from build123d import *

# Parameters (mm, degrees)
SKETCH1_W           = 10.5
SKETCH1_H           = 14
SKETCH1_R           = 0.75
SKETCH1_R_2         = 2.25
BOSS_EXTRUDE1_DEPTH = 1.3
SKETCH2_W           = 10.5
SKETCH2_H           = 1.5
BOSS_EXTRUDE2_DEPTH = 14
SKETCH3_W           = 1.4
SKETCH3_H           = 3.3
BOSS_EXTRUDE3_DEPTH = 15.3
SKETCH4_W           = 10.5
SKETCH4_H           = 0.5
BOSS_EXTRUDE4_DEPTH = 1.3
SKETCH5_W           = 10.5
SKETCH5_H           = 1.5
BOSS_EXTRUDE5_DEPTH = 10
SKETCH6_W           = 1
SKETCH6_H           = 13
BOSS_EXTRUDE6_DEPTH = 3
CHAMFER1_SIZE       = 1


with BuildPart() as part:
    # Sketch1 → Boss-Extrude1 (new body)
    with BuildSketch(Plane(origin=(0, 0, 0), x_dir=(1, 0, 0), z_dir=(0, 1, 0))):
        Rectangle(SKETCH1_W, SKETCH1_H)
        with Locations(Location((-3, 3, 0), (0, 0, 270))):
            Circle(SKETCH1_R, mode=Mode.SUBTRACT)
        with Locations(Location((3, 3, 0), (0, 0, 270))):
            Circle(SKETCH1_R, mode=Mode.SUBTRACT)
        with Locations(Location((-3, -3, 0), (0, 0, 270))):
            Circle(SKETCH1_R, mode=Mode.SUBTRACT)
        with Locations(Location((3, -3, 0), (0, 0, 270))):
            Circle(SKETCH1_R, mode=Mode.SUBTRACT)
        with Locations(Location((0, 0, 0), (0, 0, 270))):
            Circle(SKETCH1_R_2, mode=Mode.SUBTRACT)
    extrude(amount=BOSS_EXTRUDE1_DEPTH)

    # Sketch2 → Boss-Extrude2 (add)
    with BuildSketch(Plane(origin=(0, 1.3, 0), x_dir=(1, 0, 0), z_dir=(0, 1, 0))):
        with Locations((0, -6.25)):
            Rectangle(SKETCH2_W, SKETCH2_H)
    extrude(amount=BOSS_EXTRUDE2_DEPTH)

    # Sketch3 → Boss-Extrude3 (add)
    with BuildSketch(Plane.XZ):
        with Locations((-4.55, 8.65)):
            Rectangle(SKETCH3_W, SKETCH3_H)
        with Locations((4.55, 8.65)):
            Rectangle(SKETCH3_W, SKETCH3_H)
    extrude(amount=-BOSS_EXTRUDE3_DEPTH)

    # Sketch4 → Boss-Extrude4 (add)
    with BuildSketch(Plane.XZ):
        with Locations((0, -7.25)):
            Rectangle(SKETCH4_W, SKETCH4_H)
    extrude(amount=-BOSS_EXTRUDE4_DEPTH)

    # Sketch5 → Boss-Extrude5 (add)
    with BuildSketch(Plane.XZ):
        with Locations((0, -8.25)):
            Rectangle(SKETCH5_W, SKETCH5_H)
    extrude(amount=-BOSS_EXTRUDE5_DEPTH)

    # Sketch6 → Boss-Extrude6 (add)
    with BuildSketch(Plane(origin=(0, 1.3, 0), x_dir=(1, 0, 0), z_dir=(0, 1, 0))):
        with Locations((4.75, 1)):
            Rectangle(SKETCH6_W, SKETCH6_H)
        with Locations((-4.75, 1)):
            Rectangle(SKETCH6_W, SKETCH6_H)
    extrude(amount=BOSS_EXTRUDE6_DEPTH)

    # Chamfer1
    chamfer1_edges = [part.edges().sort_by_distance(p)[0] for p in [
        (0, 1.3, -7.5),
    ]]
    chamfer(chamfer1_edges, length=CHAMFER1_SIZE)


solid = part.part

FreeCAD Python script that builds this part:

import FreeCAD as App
import Part
import Sketcher
from FreeCAD import Vector


def edges_at(feature, points):
    """Names of the edges that pass closest to the given points."""
    edges = feature.Shape.Edges
    near = lambda p: min(range(len(edges)), key=lambda i: edges[i].distToShape(Part.Vertex(*p))[0])
    return sorted({f"Edge{near(p) + 1}" for p in points})

doc = App.newDocument("Part")
params = doc.addObject("Spreadsheet::Sheet", "Params")
for row, (alias, value) in enumerate([
    ("sketch1_diameter", "1.5 mm"),
    ("sketch1_diameter2", "4.5 mm"),
    ("sketch1_height", "14 mm"),
    ("sketch1_width", "10.5 mm"),
    ("pad1_length", "1.3 mm"),
    ("sketch2_width", "10.5 mm"),
    ("sketch2_height", "1.5 mm"),
    ("pad2_length", "14 mm"),
    ("sketch3_width", "1.4 mm"),
    ("sketch3_height", "3.3 mm"),
    ("pad3_length", "15.3 mm"),
    ("sketch4_width", "10.5 mm"),
    ("sketch4_height", "0.5 mm"),
    ("pad4_length", "1.3 mm"),
    ("sketch5_width", "10.5 mm"),
    ("sketch5_height", "1.5 mm"),
    ("pad5_length", "10 mm"),
    ("sketch6_width", "1 mm"),
    ("sketch6_height", "13 mm"),
    ("pad6_length", "3 mm"),
    ("chamfer_size", "1 mm"),
], start=1):
    params.set(f"A{row}", alias)
    params.set(f"B{row}", "=" + value)
    params.setAlias(f"B{row}", alias)

body = doc.addObject("PartDesign::Body", "Body")

sketch1 = doc.addObject("Sketcher::SketchObject", "Sketch")
body.addObject(sketch1)
sketch1.AttachmentSupport = (doc.XZ_Plane, [""])
sketch1.MapMode = "FlatFace"
sketch1.addGeometry(Part.LineSegment(Vector(-5.2, -7, 0), Vector(-5.2, 7, 0)), False)
sketch1.addGeometry(Part.LineSegment(Vector(-5.2, 7, 0), Vector(5.2, 7, 0)), False)
sketch1.addGeometry(Part.LineSegment(Vector(5.2, 7, 0), Vector(5.2, -7, 0)), False)
sketch1.addGeometry(Part.LineSegment(Vector(5.2, -7, 0), Vector(-5.2, -7, 0)), False)
sketch1.addGeometry(Part.Circle(Vector(-3, 3, 0), Vector(0, 0, 1), 0.8), False)
sketch1.addGeometry(Part.Circle(Vector(3, 3, 0), Vector(0, 0, 1), 0.8), False)
sketch1.addGeometry(Part.Circle(Vector(-3, -3, 0), Vector(0, 0, 1), 0.8), False)
sketch1.addGeometry(Part.Circle(Vector(0, 0, 0), Vector(0, 0, 1), 2.2), False)
sketch1.addGeometry(Part.Circle(Vector(3, -3, 0), Vector(0, 0, 1), 0.8), False)
sketch1.addConstraint(Sketcher.Constraint("Coincident", 0, 2, 1, 1))
sketch1.addConstraint(Sketcher.Constraint("Coincident", 1, 2, 2, 1))
sketch1.addConstraint(Sketcher.Constraint("Coincident", 2, 2, 3, 1))
sketch1.addConstraint(Sketcher.Constraint("Coincident", 3, 2, 0, 1))
sketch1.addConstraint(Sketcher.Constraint("Vertical", 0))
sketch1.addConstraint(Sketcher.Constraint("Horizontal", 1))
sketch1.addConstraint(Sketcher.Constraint("Vertical", 2))
sketch1.addConstraint(Sketcher.Constraint("Horizontal", 3))
sketch1.addConstraint(Sketcher.Constraint("Coincident", 7, 3, -1, 1))
sketch1.addConstraint(Sketcher.Constraint("Equal", 4, 5))
sketch1.addConstraint(Sketcher.Constraint("Equal", 5, 6))
sketch1.addConstraint(Sketcher.Constraint("Equal", 6, 8))
sketch1.addConstraint(Sketcher.Constraint("Symmetric", 5, 3, 6, 3, -1, 1))
sketch1.addConstraint(Sketcher.Constraint("Symmetric", 4, 3, 8, 3, -1, 1))
sketch1.addConstraint(Sketcher.Constraint("Symmetric", 0, 2, 2, 2, -1, 1))
sketch1.addConstraint(Sketcher.Constraint("Symmetric", 4, 3, 5, 3, -2))
sketch1.addConstraint(Sketcher.Constraint("Diameter", 4, 1.5))
sketch1.addConstraint(Sketcher.Constraint("Diameter", 7, 4.5))
sketch1.addConstraint(Sketcher.Constraint("DistanceY", 0, 1, 0, 2, 14.0))
sketch1.addConstraint(Sketcher.Constraint("DistanceX", 1, 1, 1, 2, 10.5))
sketch1.addConstraint(Sketcher.Constraint("DistanceX", 4, 3, -1, 1, 3.0))
sketch1.addConstraint(Sketcher.Constraint("DistanceY", -1, 1, 4, 3, 3.0))
sketch1.setExpression("Constraints[16]", "Params.sketch1_diameter")
sketch1.setExpression("Constraints[17]", "Params.sketch1_diameter2")
sketch1.setExpression("Constraints[18]", "Params.sketch1_height")
sketch1.setExpression("Constraints[19]", "Params.sketch1_width")
pad1 = doc.addObject("PartDesign::Pad", "Pad")
body.addObject(pad1)
pad1.Profile = sketch1
pad1.setExpression("Length", "Params.pad1_length")
pad1.Reversed = True

sketch2 = doc.addObject("Sketcher::SketchObject", "Sketch001")
body.addObject(sketch2)
sketch2.AttachmentSupport = (doc.XZ_Plane, [""])
sketch2.MapMode = "FlatFace"
sketch2.AttachmentOffset = App.Placement(Vector(0, 0, -1.3), App.Rotation())
sketch2.addGeometry(Part.LineSegment(Vector(-5.2, 5.5, 0), Vector(-5.2, 7, 0)), False)
sketch2.addGeometry(Part.LineSegment(Vector(-5.2, 7, 0), Vector(5.2, 7, 0)), False)
sketch2.addGeometry(Part.LineSegment(Vector(5.2, 7, 0), Vector(5.2, 5.5, 0)), False)
sketch2.addGeometry(Part.LineSegment(Vector(5.2, 5.5, 0), Vector(-5.2, 5.5, 0)), False)
sketch2.addConstraint(Sketcher.Constraint("Coincident", 0, 2, 1, 1))
sketch2.addConstraint(Sketcher.Constraint("Coincident", 1, 2, 2, 1))
sketch2.addConstraint(Sketcher.Constraint("Coincident", 2, 2, 3, 1))
sketch2.addConstraint(Sketcher.Constraint("Coincident", 3, 2, 0, 1))
sketch2.addConstraint(Sketcher.Constraint("Vertical", 0))
sketch2.addConstraint(Sketcher.Constraint("Horizontal", 1))
sketch2.addConstraint(Sketcher.Constraint("Vertical", 2))
sketch2.addConstraint(Sketcher.Constraint("Horizontal", 3))
sketch2.addConstraint(Sketcher.Constraint("DistanceX", 1, 1, 1, 2, 10.5))
sketch2.addConstraint(Sketcher.Constraint("DistanceY", 0, 1, 0, 2, 1.5))
sketch2.addConstraint(Sketcher.Constraint("DistanceY", -1, 1, 0, 2, 7.0))
sketch2.addConstraint(Sketcher.Constraint("DistanceX", 0, 2, -1, 1, 5.25))
sketch2.setExpression("Constraints[8]", "Params.sketch2_width")
sketch2.setExpression("Constraints[9]", "Params.sketch2_height")
pad2 = doc.addObject("PartDesign::Pad", "Pad001")
body.addObject(pad2)
pad2.Profile = sketch2
pad2.setExpression("Length", "Params.pad2_length")
pad2.Reversed = True

sketch3 = doc.addObject("Sketcher::SketchObject", "Sketch002")
body.addObject(sketch3)
sketch3.AttachmentSupport = (doc.XZ_Plane, [""])
sketch3.MapMode = "FlatFace"
sketch3.addGeometry(Part.LineSegment(Vector(-5.2, 10.3, 0), Vector(-5.2, 7, 0)), False)
sketch3.addGeometry(Part.LineSegment(Vector(-5.2, 7, 0), Vector(-3.9, 7, 0)), False)
sketch3.addGeometry(Part.LineSegment(Vector(-3.9, 7, 0), Vector(-3.9, 10.3, 0)), False)
sketch3.addGeometry(Part.LineSegment(Vector(-3.9, 10.3, 0), Vector(-5.2, 10.3, 0)), False)
sketch3.addGeometry(Part.LineSegment(Vector(3.9, 10.3, 0), Vector(3.9, 7, 0)), False)
sketch3.addGeometry(Part.LineSegment(Vector(3.9, 7, 0), Vector(5.2, 7, 0)), False)
sketch3.addGeometry(Part.LineSegment(Vector(5.2, 7, 0), Vector(5.2, 10.3, 0)), False)
sketch3.addGeometry(Part.LineSegment(Vector(5.2, 10.3, 0), Vector(3.9, 10.3, 0)), False)
sketch3.addConstraint(Sketcher.Constraint("Coincident", 0, 2, 1, 1))
sketch3.addConstraint(Sketcher.Constraint("Coincident", 1, 2, 2, 1))
sketch3.addConstraint(Sketcher.Constraint("Coincident", 2, 2, 3, 1))
sketch3.addConstraint(Sketcher.Constraint("Coincident", 3, 2, 0, 1))
sketch3.addConstraint(Sketcher.Constraint("Coincident", 4, 2, 5, 1))
sketch3.addConstraint(Sketcher.Constraint("Coincident", 5, 2, 6, 1))
sketch3.addConstraint(Sketcher.Constraint("Coincident", 6, 2, 7, 1))
sketch3.addConstraint(Sketcher.Constraint("Coincident", 7, 2, 4, 1))
sketch3.addConstraint(Sketcher.Constraint("Vertical", 0))
sketch3.addConstraint(Sketcher.Constraint("Horizontal", 1))
sketch3.addConstraint(Sketcher.Constraint("Vertical", 2))
sketch3.addConstraint(Sketcher.Constraint("Horizontal", 3))
sketch3.addConstraint(Sketcher.Constraint("Vertical", 4))
sketch3.addConstraint(Sketcher.Constraint("Horizontal", 5))
sketch3.addConstraint(Sketcher.Constraint("Vertical", 6))
sketch3.addConstraint(Sketcher.Constraint("Horizontal", 7))
sketch3.addConstraint(Sketcher.Constraint("Symmetric", 1, 2, 4, 2, -2))
sketch3.addConstraint(Sketcher.Constraint("Symmetric", 3, 2, 6, 2, -2))
sketch3.addConstraint(Sketcher.Constraint("DistanceX", 1, 1, 1, 2, 1.4))
sketch3.addConstraint(Sketcher.Constraint("DistanceY", 0, 2, 0, 1, 3.3))
sketch3.addConstraint(Sketcher.Constraint("DistanceY", -1, 1, 0, 2, 7.0))
sketch3.addConstraint(Sketcher.Constraint("DistanceX", 1, 2, 4, 2, 7.7))
sketch3.setExpression("Constraints[18]", "Params.sketch3_width")
sketch3.setExpression("Constraints[19]", "Params.sketch3_height")
pad3 = doc.addObject("PartDesign::Pad", "Pad002")
body.addObject(pad3)
pad3.Profile = sketch3
pad3.setExpression("Length", "Params.pad3_length")
pad3.Reversed = True

sketch4 = doc.addObject("Sketcher::SketchObject", "Sketch003")
body.addObject(sketch4)
sketch4.AttachmentSupport = (doc.XZ_Plane, [""])
sketch4.MapMode = "FlatFace"
sketch4.addGeometry(Part.LineSegment(Vector(-5.2, -7, 0), Vector(-5.2, -7.5, 0)), False)
sketch4.addGeometry(Part.LineSegment(Vector(-5.2, -7.5, 0), Vector(5.2, -7.5, 0)), False)
sketch4.addGeometry(Part.LineSegment(Vector(5.2, -7.5, 0), Vector(5.2, -7, 0)), False)
sketch4.addGeometry(Part.LineSegment(Vector(5.2, -7, 0), Vector(-5.2, -7, 0)), False)
sketch4.addConstraint(Sketcher.Constraint("Coincident", 0, 2, 1, 1))
sketch4.addConstraint(Sketcher.Constraint("Coincident", 1, 2, 2, 1))
sketch4.addConstraint(Sketcher.Constraint("Coincident", 2, 2, 3, 1))
sketch4.addConstraint(Sketcher.Constraint("Coincident", 3, 2, 0, 1))
sketch4.addConstraint(Sketcher.Constraint("Vertical", 0))
sketch4.addConstraint(Sketcher.Constraint("Horizontal", 1))
sketch4.addConstraint(Sketcher.Constraint("Vertical", 2))
sketch4.addConstraint(Sketcher.Constraint("Horizontal", 3))
sketch4.addConstraint(Sketcher.Constraint("DistanceX", 1, 1, 1, 2, 10.5))
sketch4.addConstraint(Sketcher.Constraint("DistanceY", 0, 2, 0, 1, 0.5))
sketch4.addConstraint(Sketcher.Constraint("DistanceY", 2, 2, -1, 1, 7.0))
sketch4.addConstraint(Sketcher.Constraint("DistanceX", 0, 2, -1, 1, 5.25))
sketch4.setExpression("Constraints[8]", "Params.sketch4_width")
sketch4.setExpression("Constraints[9]", "Params.sketch4_height")
pad4 = doc.addObject("PartDesign::Pad", "Pad003")
body.addObject(pad4)
pad4.Profile = sketch4
pad4.setExpression("Length", "Params.pad4_length")
pad4.Reversed = True

sketch5 = doc.addObject("Sketcher::SketchObject", "Sketch004")
body.addObject(sketch5)
sketch5.AttachmentSupport = (doc.XZ_Plane, [""])
sketch5.MapMode = "FlatFace"
sketch5.addGeometry(Part.LineSegment(Vector(-5.2, -7.5, 0), Vector(-5.2, -9, 0)), False)
sketch5.addGeometry(Part.LineSegment(Vector(-5.2, -9, 0), Vector(5.2, -9, 0)), False)
sketch5.addGeometry(Part.LineSegment(Vector(5.2, -9, 0), Vector(5.2, -7.5, 0)), False)
sketch5.addGeometry(Part.LineSegment(Vector(5.2, -7.5, 0), Vector(-5.2, -7.5, 0)), False)
sketch5.addConstraint(Sketcher.Constraint("Coincident", 0, 2, 1, 1))
sketch5.addConstraint(Sketcher.Constraint("Coincident", 1, 2, 2, 1))
sketch5.addConstraint(Sketcher.Constraint("Coincident", 2, 2, 3, 1))
sketch5.addConstraint(Sketcher.Constraint("Coincident", 3, 2, 0, 1))
sketch5.addConstraint(Sketcher.Constraint("Vertical", 0))
sketch5.addConstraint(Sketcher.Constraint("Horizontal", 1))
sketch5.addConstraint(Sketcher.Constraint("Vertical", 2))
sketch5.addConstraint(Sketcher.Constraint("Horizontal", 3))
sketch5.addConstraint(Sketcher.Constraint("DistanceX", 1, 1, 1, 2, 10.5))
sketch5.addConstraint(Sketcher.Constraint("DistanceY", 0, 2, 0, 1, 1.5))
sketch5.addConstraint(Sketcher.Constraint("DistanceY", 0, 2, -1, 1, 9.0))
sketch5.addConstraint(Sketcher.Constraint("DistanceX", 0, 2, -1, 1, 5.25))
sketch5.setExpression("Constraints[8]", "Params.sketch5_width")
sketch5.setExpression("Constraints[9]", "Params.sketch5_height")
pad5 = doc.addObject("PartDesign::Pad", "Pad004")
body.addObject(pad5)
pad5.Profile = sketch5
pad5.setExpression("Length", "Params.pad5_length")
pad5.Reversed = True

sketch6 = doc.addObject("Sketcher::SketchObject", "Sketch005")
body.addObject(sketch6)
sketch6.AttachmentSupport = (doc.XZ_Plane, [""])
sketch6.MapMode = "FlatFace"
sketch6.AttachmentOffset = App.Placement(Vector(0, 0, -1.3), App.Rotation())
sketch6.addGeometry(Part.LineSegment(Vector(4.2, -7.5, 0), Vector(4.2, 5.5, 0)), False)
sketch6.addGeometry(Part.LineSegment(Vector(4.2, 5.5, 0), Vector(5.2, 5.5, 0)), False)
sketch6.addGeometry(Part.LineSegment(Vector(5.2, 5.5, 0), Vector(5.2, -7.5, 0)), False)
sketch6.addGeometry(Part.LineSegment(Vector(5.2, -7.5, 0), Vector(4.2, -7.5, 0)), False)
sketch6.addGeometry(Part.LineSegment(Vector(-5.2, -7.5, 0), Vector(-5.2, 5.5, 0)), False)
sketch6.addGeometry(Part.LineSegment(Vector(-5.2, 5.5, 0), Vector(-4.2, 5.5, 0)), False)
sketch6.addGeometry(Part.LineSegment(Vector(-4.2, 5.5, 0), Vector(-4.2, -7.5, 0)), False)
sketch6.addGeometry(Part.LineSegment(Vector(-4.2, -7.5, 0), Vector(-5.2, -7.5, 0)), False)
sketch6.addConstraint(Sketcher.Constraint("Coincident", 0, 2, 1, 1))
sketch6.addConstraint(Sketcher.Constraint("Coincident", 1, 2, 2, 1))
sketch6.addConstraint(Sketcher.Constraint("Coincident", 2, 2, 3, 1))
sketch6.addConstraint(Sketcher.Constraint("Coincident", 3, 2, 0, 1))
sketch6.addConstraint(Sketcher.Constraint("Coincident", 4, 2, 5, 1))
sketch6.addConstraint(Sketcher.Constraint("Coincident", 5, 2, 6, 1))
sketch6.addConstraint(Sketcher.Constraint("Coincident", 6, 2, 7, 1))
sketch6.addConstraint(Sketcher.Constraint("Coincident", 7, 2, 4, 1))
sketch6.addConstraint(Sketcher.Constraint("Vertical", 0))
sketch6.addConstraint(Sketcher.Constraint("Horizontal", 1))
sketch6.addConstraint(Sketcher.Constraint("Vertical", 2))
sketch6.addConstraint(Sketcher.Constraint("Horizontal", 3))
sketch6.addConstraint(Sketcher.Constraint("Vertical", 4))
sketch6.addConstraint(Sketcher.Constraint("Horizontal", 5))
sketch6.addConstraint(Sketcher.Constraint("Vertical", 6))
sketch6.addConstraint(Sketcher.Constraint("Horizontal", 7))
sketch6.addConstraint(Sketcher.Constraint("Symmetric", 1, 2, 4, 2, -2))
sketch6.addConstraint(Sketcher.Constraint("Symmetric", 3, 2, 6, 2, -2))
sketch6.addConstraint(Sketcher.Constraint("DistanceX", 1, 1, 1, 2, 1.0))
sketch6.addConstraint(Sketcher.Constraint("DistanceY", 0, 1, 0, 2, 13.0))
sketch6.addConstraint(Sketcher.Constraint("DistanceY", -1, 1, 0, 2, 5.5))
sketch6.addConstraint(Sketcher.Constraint("DistanceX", 4, 2, 0, 2, 9.5))
sketch6.setExpression("Constraints[18]", "Params.sketch6_width")
sketch6.setExpression("Constraints[19]", "Params.sketch6_height")
pad6 = doc.addObject("PartDesign::Pad", "Pad005")
body.addObject(pad6)
pad6.Profile = sketch6
pad6.setExpression("Length", "Params.pad6_length")
pad6.Reversed = True
doc.recompute()

chamfer = doc.addObject("PartDesign::Chamfer", "Chamfer")
body.addObject(chamfer)
chamfer.Base = (pad6, edges_at(pad6, [(0, 1.3, -7.5)]))
chamfer.setExpression("Size", "Params.chamfer_size")

doc.recompute()
